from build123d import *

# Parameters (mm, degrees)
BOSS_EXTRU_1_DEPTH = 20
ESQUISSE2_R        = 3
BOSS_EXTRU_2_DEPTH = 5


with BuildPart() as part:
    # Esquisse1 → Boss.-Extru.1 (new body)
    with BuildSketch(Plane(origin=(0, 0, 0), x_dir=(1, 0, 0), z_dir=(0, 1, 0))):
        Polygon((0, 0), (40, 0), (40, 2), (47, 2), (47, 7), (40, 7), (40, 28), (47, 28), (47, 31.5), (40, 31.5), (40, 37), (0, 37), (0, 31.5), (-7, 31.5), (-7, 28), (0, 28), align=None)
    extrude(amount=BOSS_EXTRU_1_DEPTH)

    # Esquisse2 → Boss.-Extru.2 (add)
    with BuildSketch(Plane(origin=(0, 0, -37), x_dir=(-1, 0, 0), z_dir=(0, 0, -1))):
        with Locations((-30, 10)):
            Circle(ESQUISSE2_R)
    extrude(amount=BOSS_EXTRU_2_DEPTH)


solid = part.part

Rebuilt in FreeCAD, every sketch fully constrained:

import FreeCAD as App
import Part
import Sketcher

doc = App.newDocument("Part")
body = doc.addObject("PartDesign::Body", "Body")

# Sketch on XZ plane
sketch1 = body.newObject("Sketcher::SketchObject", "Sketch")
sketch1.AttachmentSupport = (doc.getObject("XZ_Plane"), [""])
sketch1.MapMode = "FlatFace"
sketch1.addGeometry([
    Part.LineSegment(App.Vector(0, 0, 0), App.Vector(40, 0, 0)),  # 0
    Part.LineSegment(App.Vector(40, 0, 0), App.Vector(40, -2, 0)),  # 1
    Part.LineSegment(App.Vector(40, -2, 0), App.Vector(47, -2, 0)),  # 2
    Part.LineSegment(App.Vector(47, -2, 0), App.Vector(47, -7, 0)),  # 3
    Part.LineSegment(App.Vector(47, -7, 0), App.Vector(40, -7, 0)),  # 4
    Part.LineSegment(App.Vector(40, -7, 0), App.Vector(40, -28, 0)),  # 5
    Part.LineSegment(App.Vector(40, -28, 0), App.Vector(47, -28, 0)),  # 6
    Part.LineSegment(App.Vector(47, -28, 0), App.Vector(47, -31.5, 0)),  # 7
    Part.LineSegment(App.Vector(47, -31.5, 0), App.Vector(40, -31.5, 0)),  # 8
    Part.LineSegment(App.Vector(40, -31.5, 0), App.Vector(40, -37, 0)),  # 9
    Part.LineSegment(App.Vector(40, -37, 0), App.Vector(0, -37, 0)),  # 10
    Part.LineSegment(App.Vector(0, -37, 0), App.Vector(0, -31.5, 0)),  # 11
    Part.LineSegment(App.Vector(0, -31.5, 0), App.Vector(-7, -31.5, 0)),  # 12
    Part.LineSegment(App.Vector(-7, -31.5, 0), App.Vector(-7, -28, 0)),  # 13
    Part.LineSegment(App.Vector(-7, -28, 0), App.Vector(0, -28, 0)),  # 14
    Part.LineSegment(App.Vector(0, -28, 0), App.Vector(0, 0, 0)),  # 15
], False)
sketch1.addConstraint([
    Sketcher.Constraint("Coincident", 0, 2, 1, 1),
    Sketcher.Constraint("Coincident", 1, 2, 2, 1),
    Sketcher.Constraint("Coincident", 2, 2, 3, 1),
    Sketcher.Constraint("Coincident", 3, 2, 4, 1),
    Sketcher.Constraint("Coincident", 4, 2, 5, 1),
    Sketcher.Constraint("Coincident", 5, 2, 6, 1),
    Sketcher.Constraint("Coincident", 6, 2, 7, 1),
    Sketcher.Constraint("Coincident", 7, 2, 8, 1),
    Sketcher.Constraint("Coincident", 8, 2, 9, 1),
    Sketcher.Constraint("Coincident", 9, 2, 10, 1),
    Sketcher.Constraint("Coincident", 10, 2, 11, 1),
    Sketcher.Constraint("Coincident", 11, 2, 12, 1),
    Sketcher.Constraint("Coincident", 12, 2, 13, 1),
    Sketcher.Constraint("Coincident", 13, 2, 14, 1),
    Sketcher.Constraint("Coincident", 14, 2, 15, 1),
    Sketcher.Constraint("Coincident", 15, 2, 0, 1),
    Sketcher.Constraint("Horizontal", 0),
    Sketcher.Constraint("Vertical", 1),
    Sketcher.Constraint("Horizontal", 2),
    Sketcher.Constraint("Vertical", 3),
    Sketcher.Constraint("Horizontal", 4),
    Sketcher.Constraint("Vertical", 5),
    Sketcher.Constraint("Horizontal", 6),
    Sketcher.Constraint("Vertical", 7),
    Sketcher.Constraint("Horizontal", 8),
    Sketcher.Constraint("Vertical", 9),
    Sketcher.Constraint("Horizontal", 10),
    Sketcher.Constraint("Vertical", 11),
    Sketcher.Constraint("Horizontal", 12),
    Sketcher.Constraint("Vertical", 13),
    Sketcher.Constraint("Horizontal", 14),
    Sketcher.Constraint("Vertical", 15),
    Sketcher.Constraint("Coincident", 15, 2, -1, 1),
    Sketcher.Constraint("PointOnObject", 10, 2, -2),
    Sketcher.Constraint("Horizontal", 8, 2, 11, 2),
    Sketcher.Constraint("Horizontal", 6, 2, 13, 2),
    Sketcher.Constraint("Vertical", 1, 2, 4, 2),
    Sketcher.Constraint("Vertical", 3, 2, 6, 2),
    Sketcher.Constraint("Vertical", 5, 2, 8, 2),
    Sketcher.Constraint("Equal", 8, 12),
    Sketcher.Constraint("DistanceX", 0, 1, 0, 2, 40.0),
    Sketcher.Constraint("DistanceX", 2, 1, 2, 2, 7.0),
    Sketcher.Constraint("DistanceY", 1, 2, 1, 1, 2.0),
    Sketcher.Constraint("DistanceY", 3, 2, 3, 1, 5.0),
    Sketcher.Constraint("DistanceY", 5, 2, 5, 1, 21.0),
    Sketcher.Constraint("DistanceY", 7, 2, 7, 1, 3.5),
    Sketcher.Constraint("DistanceY", 9, 2, 9, 1, 5.5),
])
pad1 = body.newObject("PartDesign::Pad", "Pad")
pad1.Profile = sketch1
pad1.Length = 20
pad1.Reversed = True

# Sketch on XY plane
sketch2 = body.newObject("Sketcher::SketchObject", "Sketch001")
sketch2.AttachmentSupport = (doc.getObject("XY_Plane"), [""])
sketch2.MapMode = "FlatFace"
sketch2.AttachmentOffset = App.Placement(App.Vector(0, 0, -37), App.Rotation())
sketch2.addGeometry(Part.Circle(App.Vector(30, 10, 0), App.Vector(0, 0, 1), 3), False)
sketch2.addConstraint([
    Sketcher.Constraint("Diameter", 0, 6.0),
    Sketcher.Constraint("DistanceX", -1, 1, 0, 3, 30.0),
    Sketcher.Constraint("DistanceY", -1, 1, 0, 3, 10.0),
])
pad2 = body.newObject("PartDesign::Pad", "Pad001")
pad2.Profile = sketch2
pad2.Length = 5
pad2.Reversed = True

doc.recompute()
